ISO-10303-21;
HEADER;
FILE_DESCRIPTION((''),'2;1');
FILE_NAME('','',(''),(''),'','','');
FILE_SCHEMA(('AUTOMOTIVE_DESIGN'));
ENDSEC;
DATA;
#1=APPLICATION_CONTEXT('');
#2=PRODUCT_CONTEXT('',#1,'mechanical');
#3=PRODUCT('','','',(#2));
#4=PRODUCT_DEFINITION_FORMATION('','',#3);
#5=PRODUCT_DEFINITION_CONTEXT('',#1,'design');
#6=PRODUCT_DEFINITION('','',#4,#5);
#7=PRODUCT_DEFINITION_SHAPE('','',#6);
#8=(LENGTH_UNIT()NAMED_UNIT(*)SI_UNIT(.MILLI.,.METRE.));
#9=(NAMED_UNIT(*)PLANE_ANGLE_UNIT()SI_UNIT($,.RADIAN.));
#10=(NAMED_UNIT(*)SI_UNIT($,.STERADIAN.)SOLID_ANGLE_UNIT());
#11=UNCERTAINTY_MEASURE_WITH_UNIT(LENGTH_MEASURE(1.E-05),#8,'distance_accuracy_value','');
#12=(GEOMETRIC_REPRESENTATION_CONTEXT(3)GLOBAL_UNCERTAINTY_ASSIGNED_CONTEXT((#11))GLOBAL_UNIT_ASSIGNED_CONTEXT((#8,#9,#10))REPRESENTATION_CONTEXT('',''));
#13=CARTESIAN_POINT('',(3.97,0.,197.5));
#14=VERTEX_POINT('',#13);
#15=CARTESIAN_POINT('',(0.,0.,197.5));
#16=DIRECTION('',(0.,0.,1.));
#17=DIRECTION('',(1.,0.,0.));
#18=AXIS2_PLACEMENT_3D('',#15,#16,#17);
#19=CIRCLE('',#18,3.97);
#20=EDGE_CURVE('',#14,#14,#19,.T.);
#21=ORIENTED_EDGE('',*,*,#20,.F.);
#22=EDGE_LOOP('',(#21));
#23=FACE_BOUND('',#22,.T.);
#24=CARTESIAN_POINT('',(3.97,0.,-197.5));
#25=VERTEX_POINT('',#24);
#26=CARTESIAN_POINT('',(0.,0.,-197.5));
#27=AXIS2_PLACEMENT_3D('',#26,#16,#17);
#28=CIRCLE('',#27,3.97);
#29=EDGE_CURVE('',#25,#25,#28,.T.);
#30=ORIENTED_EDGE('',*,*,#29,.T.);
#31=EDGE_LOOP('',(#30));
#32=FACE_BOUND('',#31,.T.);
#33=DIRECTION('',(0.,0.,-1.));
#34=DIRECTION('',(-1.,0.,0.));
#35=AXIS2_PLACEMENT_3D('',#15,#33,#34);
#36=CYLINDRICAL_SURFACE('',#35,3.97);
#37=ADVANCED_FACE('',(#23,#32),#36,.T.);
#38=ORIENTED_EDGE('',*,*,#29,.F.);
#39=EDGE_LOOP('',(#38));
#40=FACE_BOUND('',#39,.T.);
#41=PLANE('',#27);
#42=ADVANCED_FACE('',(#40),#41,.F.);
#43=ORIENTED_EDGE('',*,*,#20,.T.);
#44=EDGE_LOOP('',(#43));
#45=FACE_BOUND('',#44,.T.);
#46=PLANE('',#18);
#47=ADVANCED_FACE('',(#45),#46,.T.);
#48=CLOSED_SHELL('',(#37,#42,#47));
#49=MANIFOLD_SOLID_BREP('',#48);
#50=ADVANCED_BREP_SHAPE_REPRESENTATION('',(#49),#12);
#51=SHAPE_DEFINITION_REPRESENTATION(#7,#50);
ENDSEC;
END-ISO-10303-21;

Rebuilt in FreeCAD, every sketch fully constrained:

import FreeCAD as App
import Part
import Sketcher

V = App.Vector
Q = App.Units.Quantity

doc = App.newDocument("Part")
body = doc.addObject("PartDesign::Body", "Body")

# Sketch on XY plane
sketch1 = body.newObject("Sketcher::SketchObject", "Sketch")
sketch1.AttachmentSupport = (doc.getObject("XY_Plane"), [""])
sketch1.MapMode = "FlatFace"
sketch1.addGeometry(Part.Circle(V(0, 0, 0), V(0, 0, 1), 3.97), False)
sketch1.addConstraint([
    Sketcher.Constraint("Coincident", 0, 3, -1, 1),
    Sketcher.Constraint("Diameter", 0, Q("7.94 mm")),
])
pad1 = body.newObject("PartDesign::Pad", "Pad")
pad1.Profile = sketch1
pad1.Length = 395
pad1.Midplane = True

doc.recompute()
